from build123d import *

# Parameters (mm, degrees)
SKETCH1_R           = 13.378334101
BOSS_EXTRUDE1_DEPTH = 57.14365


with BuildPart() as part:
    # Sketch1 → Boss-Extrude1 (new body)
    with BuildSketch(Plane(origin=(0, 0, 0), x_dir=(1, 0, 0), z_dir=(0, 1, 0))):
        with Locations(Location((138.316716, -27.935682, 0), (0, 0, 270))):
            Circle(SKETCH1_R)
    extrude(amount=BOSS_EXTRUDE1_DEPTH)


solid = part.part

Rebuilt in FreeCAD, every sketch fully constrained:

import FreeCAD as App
import Part
import Sketcher

V = App.Vector
Q = App.Units.Quantity

doc = App.newDocument("Part")
body = doc.addObject("PartDesign::Body", "Body")

# Sketch on XZ plane
sketch1 = doc.addObject("Sketcher::SketchObject", "Sketch")
body.addObject(sketch1)
sketch1.AttachmentSupport = (doc.XZ_Plane, [""])
sketch1.MapMode = "FlatFace"
sketch1.addGeometry(Part.Circle(V(138, 28, 0), V(0, 0, 1), 13), False)
sketch1.addConstraint(Sketcher.Constraint("Diameter", 0, Q("26.756668 mm")))
sketch1.addConstraint(Sketcher.Constraint("DistanceY", -1, 1, 0, 3, Q("27.935682 mm")))
sketch1.addConstraint(Sketcher.Constraint("DistanceX", -1, 1, 0, 3, Q("138.316716 mm")))
pad1 = doc.addObject("PartDesign::Pad", "Pad")
body.addObject(pad1)
pad1.Profile = sketch1
pad1.Length = 57.14365
pad1.Reversed = True

doc.recompute()
